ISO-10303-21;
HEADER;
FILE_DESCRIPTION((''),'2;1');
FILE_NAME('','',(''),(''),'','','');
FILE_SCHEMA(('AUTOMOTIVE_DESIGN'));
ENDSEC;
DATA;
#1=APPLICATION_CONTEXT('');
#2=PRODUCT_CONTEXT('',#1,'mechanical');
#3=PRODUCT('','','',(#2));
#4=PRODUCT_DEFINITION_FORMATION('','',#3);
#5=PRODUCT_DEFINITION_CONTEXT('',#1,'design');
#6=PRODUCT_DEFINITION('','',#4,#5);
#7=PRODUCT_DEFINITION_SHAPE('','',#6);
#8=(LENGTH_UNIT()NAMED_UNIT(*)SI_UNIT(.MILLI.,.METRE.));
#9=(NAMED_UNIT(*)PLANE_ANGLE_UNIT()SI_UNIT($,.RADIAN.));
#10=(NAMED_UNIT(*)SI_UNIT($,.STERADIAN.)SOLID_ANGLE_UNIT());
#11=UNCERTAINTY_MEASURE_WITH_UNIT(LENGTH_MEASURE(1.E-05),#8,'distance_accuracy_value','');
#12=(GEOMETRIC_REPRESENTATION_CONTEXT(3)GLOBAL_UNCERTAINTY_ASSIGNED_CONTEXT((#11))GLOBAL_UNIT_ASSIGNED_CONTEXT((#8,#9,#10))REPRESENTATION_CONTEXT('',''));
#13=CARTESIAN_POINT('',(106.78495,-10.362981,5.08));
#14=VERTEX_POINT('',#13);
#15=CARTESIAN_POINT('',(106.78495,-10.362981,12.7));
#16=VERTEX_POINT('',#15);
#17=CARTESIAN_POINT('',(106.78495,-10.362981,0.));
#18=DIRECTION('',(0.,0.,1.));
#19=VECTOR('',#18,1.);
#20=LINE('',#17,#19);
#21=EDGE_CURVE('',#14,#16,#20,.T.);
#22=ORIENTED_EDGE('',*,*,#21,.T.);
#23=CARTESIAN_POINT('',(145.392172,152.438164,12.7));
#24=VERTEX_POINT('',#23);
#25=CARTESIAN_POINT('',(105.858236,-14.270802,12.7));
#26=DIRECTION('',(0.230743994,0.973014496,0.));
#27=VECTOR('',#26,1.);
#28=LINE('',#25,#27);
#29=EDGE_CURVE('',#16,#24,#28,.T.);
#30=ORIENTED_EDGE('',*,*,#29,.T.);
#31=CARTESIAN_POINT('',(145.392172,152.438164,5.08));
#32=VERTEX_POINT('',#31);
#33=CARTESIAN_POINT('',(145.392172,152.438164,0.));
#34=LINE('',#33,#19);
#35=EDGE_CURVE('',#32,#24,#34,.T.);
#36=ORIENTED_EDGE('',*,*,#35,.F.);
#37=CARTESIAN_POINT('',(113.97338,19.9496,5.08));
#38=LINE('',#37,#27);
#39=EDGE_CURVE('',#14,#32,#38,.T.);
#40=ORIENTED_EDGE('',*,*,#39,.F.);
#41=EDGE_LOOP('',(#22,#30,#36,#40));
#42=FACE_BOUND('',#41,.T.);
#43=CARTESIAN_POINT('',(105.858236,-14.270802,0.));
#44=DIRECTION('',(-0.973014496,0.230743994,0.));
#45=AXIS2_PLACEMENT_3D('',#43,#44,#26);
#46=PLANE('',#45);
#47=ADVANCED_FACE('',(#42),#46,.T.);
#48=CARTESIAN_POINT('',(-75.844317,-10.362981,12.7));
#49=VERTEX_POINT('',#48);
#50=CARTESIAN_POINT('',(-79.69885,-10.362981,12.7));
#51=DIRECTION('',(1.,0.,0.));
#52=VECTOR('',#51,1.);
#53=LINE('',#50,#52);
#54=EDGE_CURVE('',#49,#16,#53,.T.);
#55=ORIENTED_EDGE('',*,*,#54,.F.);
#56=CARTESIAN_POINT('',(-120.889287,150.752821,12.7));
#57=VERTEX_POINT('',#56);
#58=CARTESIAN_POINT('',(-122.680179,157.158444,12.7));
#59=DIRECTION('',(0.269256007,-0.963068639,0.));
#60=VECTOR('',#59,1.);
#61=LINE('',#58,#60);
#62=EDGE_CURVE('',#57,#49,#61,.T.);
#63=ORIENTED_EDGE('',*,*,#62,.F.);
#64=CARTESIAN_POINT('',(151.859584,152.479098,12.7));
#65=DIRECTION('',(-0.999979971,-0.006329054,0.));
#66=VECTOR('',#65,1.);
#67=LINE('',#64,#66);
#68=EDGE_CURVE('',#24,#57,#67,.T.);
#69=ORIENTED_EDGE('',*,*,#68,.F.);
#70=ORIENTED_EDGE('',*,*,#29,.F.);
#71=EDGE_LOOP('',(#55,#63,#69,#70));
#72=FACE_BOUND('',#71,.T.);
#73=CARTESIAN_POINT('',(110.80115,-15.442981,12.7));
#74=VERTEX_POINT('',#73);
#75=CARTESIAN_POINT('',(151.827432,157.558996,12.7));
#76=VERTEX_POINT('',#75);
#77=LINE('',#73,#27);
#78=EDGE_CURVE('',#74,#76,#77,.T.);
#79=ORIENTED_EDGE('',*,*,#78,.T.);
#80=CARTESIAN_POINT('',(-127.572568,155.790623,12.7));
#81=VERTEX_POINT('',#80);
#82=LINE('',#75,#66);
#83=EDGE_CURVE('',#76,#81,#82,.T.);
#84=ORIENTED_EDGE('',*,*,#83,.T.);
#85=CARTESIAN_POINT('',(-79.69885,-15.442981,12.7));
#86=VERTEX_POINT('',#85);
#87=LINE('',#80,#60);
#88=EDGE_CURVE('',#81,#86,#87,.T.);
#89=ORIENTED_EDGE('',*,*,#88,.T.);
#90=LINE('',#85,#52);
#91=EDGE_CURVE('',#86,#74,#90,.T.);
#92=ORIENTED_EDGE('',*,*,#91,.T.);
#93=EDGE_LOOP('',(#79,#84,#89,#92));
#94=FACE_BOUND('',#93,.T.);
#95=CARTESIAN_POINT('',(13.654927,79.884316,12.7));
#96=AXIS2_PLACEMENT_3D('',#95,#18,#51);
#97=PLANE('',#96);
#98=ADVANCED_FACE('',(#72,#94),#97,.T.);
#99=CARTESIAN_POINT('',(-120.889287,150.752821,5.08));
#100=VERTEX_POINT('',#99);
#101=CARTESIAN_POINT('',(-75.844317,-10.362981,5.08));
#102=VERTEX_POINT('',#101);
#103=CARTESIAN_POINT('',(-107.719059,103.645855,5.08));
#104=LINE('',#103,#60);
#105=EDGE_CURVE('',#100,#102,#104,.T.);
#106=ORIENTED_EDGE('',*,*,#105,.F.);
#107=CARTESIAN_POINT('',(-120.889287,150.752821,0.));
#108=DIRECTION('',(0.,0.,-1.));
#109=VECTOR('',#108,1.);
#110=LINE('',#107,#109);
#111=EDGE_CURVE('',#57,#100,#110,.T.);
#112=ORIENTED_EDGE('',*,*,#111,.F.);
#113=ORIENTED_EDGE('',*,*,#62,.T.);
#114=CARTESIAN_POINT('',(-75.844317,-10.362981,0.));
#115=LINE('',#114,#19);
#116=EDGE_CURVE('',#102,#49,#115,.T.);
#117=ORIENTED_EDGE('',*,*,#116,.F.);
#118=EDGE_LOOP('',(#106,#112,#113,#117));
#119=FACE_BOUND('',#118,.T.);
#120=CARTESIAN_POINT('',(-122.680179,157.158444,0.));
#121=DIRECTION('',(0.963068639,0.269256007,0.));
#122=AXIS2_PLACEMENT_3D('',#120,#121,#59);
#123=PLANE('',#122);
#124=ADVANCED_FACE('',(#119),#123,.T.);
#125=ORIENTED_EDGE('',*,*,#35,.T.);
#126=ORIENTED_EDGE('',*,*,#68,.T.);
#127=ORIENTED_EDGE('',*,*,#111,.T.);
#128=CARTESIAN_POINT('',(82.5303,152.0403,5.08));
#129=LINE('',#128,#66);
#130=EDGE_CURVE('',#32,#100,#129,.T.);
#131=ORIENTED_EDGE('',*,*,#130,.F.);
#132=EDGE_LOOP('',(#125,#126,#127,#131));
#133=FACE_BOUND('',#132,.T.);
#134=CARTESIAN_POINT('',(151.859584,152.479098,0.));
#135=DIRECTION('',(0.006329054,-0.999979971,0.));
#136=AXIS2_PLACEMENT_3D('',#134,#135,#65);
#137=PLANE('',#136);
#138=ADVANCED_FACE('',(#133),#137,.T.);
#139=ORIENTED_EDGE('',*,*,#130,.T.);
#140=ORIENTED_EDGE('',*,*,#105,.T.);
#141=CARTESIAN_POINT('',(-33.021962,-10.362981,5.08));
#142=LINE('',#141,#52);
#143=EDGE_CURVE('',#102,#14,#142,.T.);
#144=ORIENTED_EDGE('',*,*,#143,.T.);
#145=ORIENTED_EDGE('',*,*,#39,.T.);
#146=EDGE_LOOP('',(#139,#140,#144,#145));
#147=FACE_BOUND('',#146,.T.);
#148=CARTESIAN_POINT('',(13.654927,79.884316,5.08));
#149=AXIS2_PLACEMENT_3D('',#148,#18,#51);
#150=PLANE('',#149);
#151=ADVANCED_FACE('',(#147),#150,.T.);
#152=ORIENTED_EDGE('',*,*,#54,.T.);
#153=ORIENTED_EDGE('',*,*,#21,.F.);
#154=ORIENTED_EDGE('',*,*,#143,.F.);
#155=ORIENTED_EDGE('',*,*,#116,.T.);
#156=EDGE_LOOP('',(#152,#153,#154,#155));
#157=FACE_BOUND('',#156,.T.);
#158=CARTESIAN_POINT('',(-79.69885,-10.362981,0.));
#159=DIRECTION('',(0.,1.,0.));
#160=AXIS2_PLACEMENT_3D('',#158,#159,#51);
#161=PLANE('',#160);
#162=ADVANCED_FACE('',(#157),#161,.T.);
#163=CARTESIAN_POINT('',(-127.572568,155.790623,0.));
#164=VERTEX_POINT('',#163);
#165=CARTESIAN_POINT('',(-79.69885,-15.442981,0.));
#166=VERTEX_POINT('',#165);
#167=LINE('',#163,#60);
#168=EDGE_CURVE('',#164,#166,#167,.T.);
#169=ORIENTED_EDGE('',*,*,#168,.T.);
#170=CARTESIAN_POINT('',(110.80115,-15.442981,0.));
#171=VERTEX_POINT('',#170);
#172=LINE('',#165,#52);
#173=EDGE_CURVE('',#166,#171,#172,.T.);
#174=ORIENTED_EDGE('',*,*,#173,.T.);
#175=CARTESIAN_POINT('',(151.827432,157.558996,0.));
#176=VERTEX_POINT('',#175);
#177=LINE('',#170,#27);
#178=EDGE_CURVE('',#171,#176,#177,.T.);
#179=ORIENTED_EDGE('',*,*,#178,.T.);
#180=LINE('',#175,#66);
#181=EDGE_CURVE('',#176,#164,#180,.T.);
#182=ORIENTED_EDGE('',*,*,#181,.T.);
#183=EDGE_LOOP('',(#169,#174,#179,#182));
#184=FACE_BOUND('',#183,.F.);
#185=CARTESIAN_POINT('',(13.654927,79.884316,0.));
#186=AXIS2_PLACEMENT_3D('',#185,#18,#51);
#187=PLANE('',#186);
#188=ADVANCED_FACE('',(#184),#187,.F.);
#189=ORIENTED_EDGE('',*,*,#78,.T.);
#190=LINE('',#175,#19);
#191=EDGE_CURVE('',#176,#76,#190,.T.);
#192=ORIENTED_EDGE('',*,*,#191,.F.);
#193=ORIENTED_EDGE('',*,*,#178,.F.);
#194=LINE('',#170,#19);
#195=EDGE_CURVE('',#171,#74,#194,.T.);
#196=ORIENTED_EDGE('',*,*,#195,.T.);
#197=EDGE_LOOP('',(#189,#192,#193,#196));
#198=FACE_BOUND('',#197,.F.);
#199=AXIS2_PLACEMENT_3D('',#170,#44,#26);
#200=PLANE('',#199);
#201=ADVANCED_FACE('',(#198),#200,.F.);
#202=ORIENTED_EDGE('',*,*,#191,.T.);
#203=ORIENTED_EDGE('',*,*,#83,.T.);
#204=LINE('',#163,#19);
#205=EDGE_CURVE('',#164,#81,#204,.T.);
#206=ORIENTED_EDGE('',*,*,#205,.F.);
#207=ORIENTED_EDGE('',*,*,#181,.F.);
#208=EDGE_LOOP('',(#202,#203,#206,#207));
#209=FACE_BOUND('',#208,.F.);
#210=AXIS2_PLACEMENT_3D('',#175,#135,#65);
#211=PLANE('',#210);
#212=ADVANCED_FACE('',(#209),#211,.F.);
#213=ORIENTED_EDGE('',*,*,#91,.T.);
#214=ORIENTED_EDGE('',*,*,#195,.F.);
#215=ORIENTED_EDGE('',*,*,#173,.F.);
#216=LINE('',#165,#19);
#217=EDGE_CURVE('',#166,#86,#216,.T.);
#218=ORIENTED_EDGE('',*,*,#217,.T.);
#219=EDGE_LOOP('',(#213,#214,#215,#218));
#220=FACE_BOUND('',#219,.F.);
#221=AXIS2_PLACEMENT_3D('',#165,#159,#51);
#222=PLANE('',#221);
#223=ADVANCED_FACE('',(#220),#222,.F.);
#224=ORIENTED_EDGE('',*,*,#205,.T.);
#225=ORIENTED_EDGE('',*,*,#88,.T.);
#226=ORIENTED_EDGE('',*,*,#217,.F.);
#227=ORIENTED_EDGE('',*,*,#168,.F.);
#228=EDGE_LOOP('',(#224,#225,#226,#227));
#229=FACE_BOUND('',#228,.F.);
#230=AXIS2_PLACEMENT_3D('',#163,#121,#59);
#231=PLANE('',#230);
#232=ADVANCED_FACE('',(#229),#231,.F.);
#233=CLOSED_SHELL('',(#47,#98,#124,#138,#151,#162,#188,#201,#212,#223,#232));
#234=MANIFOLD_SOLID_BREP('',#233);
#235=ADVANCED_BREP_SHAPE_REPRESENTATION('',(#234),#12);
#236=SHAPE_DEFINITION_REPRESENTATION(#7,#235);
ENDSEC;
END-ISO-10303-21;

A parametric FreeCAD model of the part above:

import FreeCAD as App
import Part
import Sketcher
from FreeCAD import Vector
Q = App.Units.Quantity


def faces_at(feature, points):
    """Names of the faces that lie closest to the given points."""
    faces = feature.Shape.Faces
    near = lambda p: min(range(len(faces)), key=lambda i: faces[i].distToShape(Part.Vertex(*p))[0])
    return sorted({f"Face{near(p) + 1}" for p in points})

doc = App.newDocument("Part")
body = doc.addObject("PartDesign::Body", "Body")

sketch1 = body.newObject("Sketcher::SketchObject", "Sketch")
sketch1.AttachmentSupport = (doc.getObject("XY_Plane"), [""])
sketch1.MapMode = "FlatFace"
sketch1.addGeometry(Part.LineSegment(Vector(-127.572568, 155.790623, 0), Vector(-79.69885, -15.442981, 0)), False)
sketch1.addGeometry(Part.LineSegment(Vector(-79.69885, -15.442981, 0), Vector(110.80115, -15.442981, 0)), False)
sketch1.addGeometry(Part.LineSegment(Vector(110.80115, -15.442981, 0), Vector(151.827432, 157.558996, 0)), False)
sketch1.addGeometry(Part.LineSegment(Vector(151.827432, 157.558996, 0), Vector(-127.572568, 155.790623, 0)), False)
sketch1.addConstraint(Sketcher.Constraint("Coincident", 0, 2, 1, 1))
sketch1.addConstraint(Sketcher.Constraint("Coincident", 1, 2, 2, 1))
sketch1.addConstraint(Sketcher.Constraint("Coincident", 2, 2, 3, 1))
sketch1.addConstraint(Sketcher.Constraint("Coincident", 3, 2, 0, 1))
sketch1.addConstraint(Sketcher.Constraint("Horizontal", 1))
sketch1.addConstraint(Sketcher.Constraint("Equal", 0, 2))
sketch1.addConstraint(Sketcher.Constraint("Distance", 0, Q("7 in")))
sketch1.addConstraint(Sketcher.Constraint("DistanceX", 1, 1, 1, 2, Q("7.5 in")))
sketch1.addConstraint(Sketcher.Constraint("DistanceX", 3, 2, 2, 2, Q("11 in")))
sketch1.addConstraint(Sketcher.Constraint("Angle", 0, Q("-74.38 deg")))
sketch1.addConstraint(Sketcher.Constraint("DistanceX", 0, 2, -1, 1, Q("79.69885 mm")))
sketch1.addConstraint(Sketcher.Constraint("DistanceY", 0, 2, -1, 1, Q("15.442981 mm")))
pad1 = body.newObject("PartDesign::Pad", "Pad")
pad1.Profile = sketch1
pad1.Length = Q("0.5 in")
doc.recompute()

thickness = body.newObject("PartDesign::Thickness", "Thickness")
thickness.Base = (pad1, faces_at(pad1, [(12.127, 71.058, 12.7)]))
thickness.Value = Q("0.2 in")
thickness.Reversed = True
thickness.Join = "Arc"

doc.recompute()
